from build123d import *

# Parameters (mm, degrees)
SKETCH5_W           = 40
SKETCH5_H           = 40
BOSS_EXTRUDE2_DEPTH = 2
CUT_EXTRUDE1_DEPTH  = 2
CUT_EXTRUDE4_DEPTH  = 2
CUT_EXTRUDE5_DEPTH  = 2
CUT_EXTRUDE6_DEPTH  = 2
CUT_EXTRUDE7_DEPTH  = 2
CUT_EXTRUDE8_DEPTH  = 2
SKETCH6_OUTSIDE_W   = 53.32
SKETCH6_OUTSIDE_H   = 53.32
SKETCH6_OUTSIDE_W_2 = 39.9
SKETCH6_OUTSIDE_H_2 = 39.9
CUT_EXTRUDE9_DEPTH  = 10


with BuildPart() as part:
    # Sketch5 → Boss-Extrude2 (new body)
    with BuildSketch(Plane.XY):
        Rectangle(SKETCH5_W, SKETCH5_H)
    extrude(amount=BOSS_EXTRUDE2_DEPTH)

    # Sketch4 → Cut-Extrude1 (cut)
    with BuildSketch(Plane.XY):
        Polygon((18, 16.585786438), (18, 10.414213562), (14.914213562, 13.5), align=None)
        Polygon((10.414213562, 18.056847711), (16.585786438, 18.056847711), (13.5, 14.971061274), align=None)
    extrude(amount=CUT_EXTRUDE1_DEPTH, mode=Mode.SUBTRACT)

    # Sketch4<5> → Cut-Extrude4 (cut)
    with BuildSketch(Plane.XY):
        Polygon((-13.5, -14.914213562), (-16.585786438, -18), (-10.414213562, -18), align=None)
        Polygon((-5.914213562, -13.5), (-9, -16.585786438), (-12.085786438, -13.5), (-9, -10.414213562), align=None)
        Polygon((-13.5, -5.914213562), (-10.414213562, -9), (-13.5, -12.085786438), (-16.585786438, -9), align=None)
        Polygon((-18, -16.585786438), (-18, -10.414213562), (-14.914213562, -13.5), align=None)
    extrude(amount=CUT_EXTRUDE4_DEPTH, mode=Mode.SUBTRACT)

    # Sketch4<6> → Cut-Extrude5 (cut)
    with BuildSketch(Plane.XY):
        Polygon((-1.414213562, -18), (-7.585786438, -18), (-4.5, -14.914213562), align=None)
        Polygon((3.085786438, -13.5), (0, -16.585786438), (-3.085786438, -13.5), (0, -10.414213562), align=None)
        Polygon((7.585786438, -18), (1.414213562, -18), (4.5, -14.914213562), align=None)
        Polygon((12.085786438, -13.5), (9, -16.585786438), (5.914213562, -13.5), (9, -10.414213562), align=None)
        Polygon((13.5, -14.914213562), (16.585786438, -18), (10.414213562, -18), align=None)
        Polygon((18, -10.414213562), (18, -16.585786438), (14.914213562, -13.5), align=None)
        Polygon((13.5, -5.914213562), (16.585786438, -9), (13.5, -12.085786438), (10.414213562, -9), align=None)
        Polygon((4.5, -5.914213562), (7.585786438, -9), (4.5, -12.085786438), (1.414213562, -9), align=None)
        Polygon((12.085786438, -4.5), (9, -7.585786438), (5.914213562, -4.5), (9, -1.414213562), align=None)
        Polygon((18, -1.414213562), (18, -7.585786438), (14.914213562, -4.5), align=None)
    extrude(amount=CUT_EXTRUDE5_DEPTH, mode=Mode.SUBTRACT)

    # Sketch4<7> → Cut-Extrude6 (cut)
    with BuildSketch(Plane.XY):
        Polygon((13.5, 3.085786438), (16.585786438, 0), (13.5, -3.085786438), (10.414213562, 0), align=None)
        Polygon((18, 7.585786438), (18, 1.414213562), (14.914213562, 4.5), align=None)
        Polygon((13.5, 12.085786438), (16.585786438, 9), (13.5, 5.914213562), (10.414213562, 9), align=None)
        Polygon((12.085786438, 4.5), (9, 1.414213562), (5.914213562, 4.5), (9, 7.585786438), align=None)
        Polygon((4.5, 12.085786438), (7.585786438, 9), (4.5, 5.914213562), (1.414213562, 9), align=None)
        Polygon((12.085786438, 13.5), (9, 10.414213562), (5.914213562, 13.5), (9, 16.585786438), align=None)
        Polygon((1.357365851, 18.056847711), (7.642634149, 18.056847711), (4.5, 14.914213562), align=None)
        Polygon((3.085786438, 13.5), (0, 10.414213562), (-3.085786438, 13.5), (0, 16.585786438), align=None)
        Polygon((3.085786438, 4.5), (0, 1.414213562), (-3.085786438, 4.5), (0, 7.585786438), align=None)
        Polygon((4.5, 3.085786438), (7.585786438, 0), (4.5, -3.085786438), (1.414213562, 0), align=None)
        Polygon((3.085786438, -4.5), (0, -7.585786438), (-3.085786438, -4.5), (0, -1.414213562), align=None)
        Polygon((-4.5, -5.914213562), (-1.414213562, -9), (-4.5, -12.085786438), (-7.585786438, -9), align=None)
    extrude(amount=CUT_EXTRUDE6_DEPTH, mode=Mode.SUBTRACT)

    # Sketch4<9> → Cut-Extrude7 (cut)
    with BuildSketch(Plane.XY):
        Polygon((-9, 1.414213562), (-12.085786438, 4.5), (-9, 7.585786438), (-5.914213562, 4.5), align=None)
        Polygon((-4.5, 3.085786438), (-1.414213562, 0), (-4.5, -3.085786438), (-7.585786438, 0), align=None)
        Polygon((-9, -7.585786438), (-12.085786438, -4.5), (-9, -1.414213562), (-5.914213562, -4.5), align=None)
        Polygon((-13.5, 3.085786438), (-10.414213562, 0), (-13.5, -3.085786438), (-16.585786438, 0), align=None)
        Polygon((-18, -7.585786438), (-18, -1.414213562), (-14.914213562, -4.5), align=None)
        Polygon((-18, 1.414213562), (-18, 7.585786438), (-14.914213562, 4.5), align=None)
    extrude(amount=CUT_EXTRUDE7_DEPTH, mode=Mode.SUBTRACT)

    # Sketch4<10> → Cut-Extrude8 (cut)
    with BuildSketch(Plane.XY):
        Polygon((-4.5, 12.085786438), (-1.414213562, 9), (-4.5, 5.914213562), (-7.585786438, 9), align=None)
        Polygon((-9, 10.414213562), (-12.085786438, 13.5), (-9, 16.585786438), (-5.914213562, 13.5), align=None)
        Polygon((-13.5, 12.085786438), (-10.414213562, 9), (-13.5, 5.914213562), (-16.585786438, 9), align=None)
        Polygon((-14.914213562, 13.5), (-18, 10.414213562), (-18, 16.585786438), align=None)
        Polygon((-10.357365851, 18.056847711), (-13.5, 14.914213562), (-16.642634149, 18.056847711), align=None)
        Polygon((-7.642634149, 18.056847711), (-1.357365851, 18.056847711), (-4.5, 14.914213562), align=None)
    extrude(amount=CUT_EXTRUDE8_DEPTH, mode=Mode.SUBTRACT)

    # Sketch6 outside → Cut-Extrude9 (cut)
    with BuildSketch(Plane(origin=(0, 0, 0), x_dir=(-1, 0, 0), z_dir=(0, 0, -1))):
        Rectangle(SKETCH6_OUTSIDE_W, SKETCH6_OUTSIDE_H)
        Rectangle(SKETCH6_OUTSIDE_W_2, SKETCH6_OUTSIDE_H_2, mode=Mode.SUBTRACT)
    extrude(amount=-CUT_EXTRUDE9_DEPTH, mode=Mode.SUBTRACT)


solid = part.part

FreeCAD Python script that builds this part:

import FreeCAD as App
import Part
import Sketcher

V = App.Vector

doc = App.newDocument("Part")
body = doc.addObject("PartDesign::Body", "Body")

# Sketch on XY plane
sketch1 = doc.addObject("Sketcher::SketchObject", "Sketch")
body.addObject(sketch1)
sketch1.AttachmentSupport = (doc.XY_Plane, [""])
sketch1.MapMode = "FlatFace"
sketch1.addGeometry([
    Part.LineSegment(V(-20, 20, 0), V(-20, -20, 0)),
    Part.LineSegment(V(-20, -20, 0), V(20, -20, 0)),
    Part.LineSegment(V(20, -20, 0), V(20, 20, 0)),
    Part.LineSegment(V(20, 20, 0), V(-20, 20, 0)),
], False)
sketch1.addConstraint([
    Sketcher.Constraint("Coincident", 0, 2, 1, 1),
    Sketcher.Constraint("Coincident", 1, 2, 2, 1),
    Sketcher.Constraint("Coincident", 2, 2, 3, 1),
    Sketcher.Constraint("Coincident", 3, 2, 0, 1),
    Sketcher.Constraint("Vertical", 0),
    Sketcher.Constraint("Horizontal", 1),
    Sketcher.Constraint("Vertical", 2),
    Sketcher.Constraint("Horizontal", 3),
    Sketcher.Constraint("Symmetric", 0, 2, 2, 2, -1, 1),
    Sketcher.Constraint("Equal", 3, 0),
    Sketcher.Constraint("DistanceX", 1, 1, 1, 2, 40.0),
])
pad1 = doc.addObject("PartDesign::Pad", "Pad")
body.addObject(pad1)
pad1.Profile = sketch1
pad1.Length = 2

# Sketch on XY plane
sketch2 = doc.addObject("Sketcher::SketchObject", "Sketch001")
body.addObject(sketch2)
sketch2.AttachmentSupport = (doc.XY_Plane, [""])
sketch2.MapMode = "FlatFace"
sketch2.addGeometry([
    Part.LineSegment(V(18, 10.4, 0), V(18, 16.6, 0)),  # 0
    Part.LineSegment(V(18, 16.6, 0), V(14.9, 13.5, 0)),  # 1
    Part.LineSegment(V(14.9, 13.5, 0), V(18, 10.4, 0)),  # 2
    Part.LineSegment(V(16.6, 18.1, 0), V(10.4, 18.1, 0)),  # 3
    Part.LineSegment(V(10.4, 18.1, 0), V(13.5, 15, 0)),  # 4
    Part.LineSegment(V(13.5, 15, 0), V(16.6, 18.1, 0)),  # 5
], False)
sketch2.addConstraint([
    Sketcher.Constraint("Coincident", 0, 2, 1, 1),
    Sketcher.Constraint("Coincident", 1, 2, 2, 1),
    Sketcher.Constraint("Coincident", 2, 2, 0, 1),
    Sketcher.Constraint("Coincident", 3, 2, 4, 1),
    Sketcher.Constraint("Coincident", 4, 2, 5, 1),
    Sketcher.Constraint("Coincident", 5, 2, 3, 1),
    Sketcher.Constraint("Vertical", 0),
    Sketcher.Constraint("Horizontal", 3),
    Sketcher.Constraint("Perpendicular", 1, 2),
    Sketcher.Constraint("Parallel", 2, 4),
    Sketcher.Constraint("Perpendicular", 4, 5),
    Sketcher.Constraint("Equal", 3, 0),
    Sketcher.Constraint("Equal", 1, 2),
    Sketcher.Constraint("DistanceX", -1, 1, 0, 2, 18.0),
    Sketcher.Constraint("DistanceY", -1, 1, 1, 2, 13.5),
    Sketcher.Constraint("DistanceX", -1, 1, 4, 2, 13.5),
    Sketcher.Constraint("Distance", 1, 4.363961),
    Sketcher.Constraint("DistanceY", -1, 1, 4, 2, 14.971061),
])
pocket1 = doc.addObject("PartDesign::Pocket", "Pocket")
body.addObject(pocket1)
pocket1.Profile = sketch2
pocket1.Length = 2
pocket1.Reversed = True

# Sketch on XY plane
sketch3 = doc.addObject("Sketcher::SketchObject", "Sketch002")
body.addObject(sketch3)
sketch3.AttachmentSupport = (doc.XY_Plane, [""])
sketch3.MapMode = "FlatFace"
sketch3.addGeometry([
    Part.LineSegment(V(-13.5, -14.9, 0), V(-16.6, -18, 0)),  # 0
    Part.LineSegment(V(-16.6, -18, 0), V(-10.4, -18, 0)),  # 1
    Part.LineSegment(V(-10.4, -18, 0), V(-13.5, -14.9, 0)),  # 2
    Part.LineSegment(V(-9, -16.6, 0), V(-5.9, -13.5, 0)),  # 3
    Part.LineSegment(V(-5.9, -13.5, 0), V(-9, -10.4, 0)),  # 4
    Part.LineSegment(V(-9, -10.4, 0), V(-12.1, -13.5, 0)),  # 5
    Part.LineSegment(V(-12.1, -13.5, 0), V(-9, -16.6, 0)),  # 6
    Part.LineSegment(V(-10.4, -9, 0), V(-13.5, -5.9, 0)),  # 7
    Part.LineSegment(V(-13.5, -5.9, 0), V(-16.6, -9, 0)),  # 8
    Part.LineSegment(V(-16.6, -9, 0), V(-13.5, -12.1, 0)),  # 9
    Part.LineSegment(V(-13.5, -12.1, 0), V(-10.4, -9, 0)),  # 10
    Part.LineSegment(V(-18, -10.4, 0), V(-18, -16.6, 0)),  # 11
    Part.LineSegment(V(-18, -16.6, 0), V(-14.9, -13.5, 0)),  # 12
    Part.LineSegment(V(-14.9, -13.5, 0), V(-18, -10.4, 0)),  # 13
], False)
sketch3.addConstraint([
    Sketcher.Constraint("Coincident", 0, 2, 1, 1),
    Sketcher.Constraint("Coincident", 1, 2, 2, 1),
    Sketcher.Constraint("Coincident", 2, 2, 0, 1),
    Sketcher.Constraint("Coincident", 3, 2, 4, 1),
    Sketcher.Constraint("Coincident", 4, 2, 5, 1),
    Sketcher.Constraint("Coincident", 5, 2, 6, 1),
    Sketcher.Constraint("Coincident", 6, 2, 3, 1),
    Sketcher.Constraint("Coincident", 7, 2, 8, 1),
    Sketcher.Constraint("Coincident", 8, 2, 9, 1),
    Sketcher.Constraint("Coincident", 9, 2, 10, 1),
    Sketcher.Constraint("Coincident", 10, 2, 7, 1),
    Sketcher.Constraint("Coincident", 11, 2, 12, 1),
    Sketcher.Constraint("Coincident", 12, 2, 13, 1),
    Sketcher.Constraint("Coincident", 13, 2, 11, 1),
    Sketcher.Constraint("Horizontal", 1),
    Sketcher.Constraint("Vertical", 11),
    Sketcher.Constraint("Perpendicular", 0, 2),
    Sketcher.Constraint("Perpendicular", 2, 3),
    Sketcher.Constraint("Perpendicular", 3, 4),
    Sketcher.Constraint("Perpendicular", 4, 5),
    Sketcher.Constraint("Perpendicular", 5, 6),
    Sketcher.Constraint("Parallel", 6, 7),
    Sketcher.Constraint("Perpendicular", 7, 8),
    Sketcher.Constraint("Perpendicular", 8, 9),
    Sketcher.Constraint("Perpendicular", 9, 10),
    Sketcher.Constraint("Parallel", 10, 12),
    Sketcher.Constraint("Perpendicular", 12, 13),
    Sketcher.Constraint("Horizontal", 3, 2, 5, 2),
    Sketcher.Constraint("Horizontal", 8, 2, 10, 2),
    Sketcher.Constraint("Horizontal", 6, 2, 11, 2),
    Sketcher.Constraint("Horizontal", 5, 2, 12, 2),
    Sketcher.Constraint("Horizontal", 4, 2, 13, 2),
    Sketcher.Constraint("Vertical", 2, 2, 7, 2),
    Sketcher.Constraint("Vertical", 0, 2, 8, 2),
    Sketcher.Constraint("Equal", 1, 11),
    Sketcher.Constraint("DistanceY", 0, 2, -1, 1, 18.0),
    Sketcher.Constraint("DistanceX", 4, 2, -1, 1, 9.0),
    Sketcher.Constraint("DistanceY", 8, 2, -1, 1, 9.0),
    Sketcher.Constraint("DistanceX", 11, 2, -1, 1, 18.0),
    Sketcher.Constraint("DistanceX", 2, 2, -1, 1, 13.5),
    Sketcher.Constraint("DistanceY", 3, 2, -1, 1, 13.5),
    Sketcher.Constraint("Distance", 0, 4.363961),
])
pocket2 = doc.addObject("PartDesign::Pocket", "Pocket001")
body.addObject(pocket2)
pocket2.Profile = sketch3
pocket2.Length = 2
pocket2.Reversed = True

# Sketch on XY plane
sketch4 = doc.addObject("Sketcher::SketchObject", "Sketch003")
body.addObject(sketch4)
sketch4.AttachmentSupport = (doc.XY_Plane, [""])
sketch4.MapMode = "FlatFace"
sketch4.addGeometry([
    Part.LineSegment(V(-7.6, -18, 0), V(-1.4, -18, 0)),  # 0
    Part.LineSegment(V(-1.4, -18, 0), V(-4.5, -14.9, 0)),  # 1
    Part.LineSegment(V(-4.5, -14.9, 0), V(-7.6, -18, 0)),  # 2
    Part.LineSegment(V(0, -16.6, 0), V(3.1, -13.5, 0)),  # 3
    Part.LineSegment(V(3.1, -13.5, 0), V(0, -10.4, 0)),  # 4
    Part.LineSegment(V(0, -10.4, 0), V(-3.1, -13.5, 0)),  # 5
    Part.LineSegment(V(-3.1, -13.5, 0), V(0, -16.6, 0)),  # 6
    Part.LineSegment(V(1.4, -18, 0), V(7.6, -18, 0)),  # 7
    Part.LineSegment(V(7.6, -18, 0), V(4.5, -14.9, 0)),  # 8
    Part.LineSegment(V(4.5, -14.9, 0), V(1.4, -18, 0)),  # 9
    Part.LineSegment(V(9, -16.6, 0), V(12.1, -13.5, 0)),  # 10
    Part.LineSegment(V(12.1, -13.5, 0), V(9, -10.4, 0)),  # 11
    Part.LineSegment(V(9, -10.4, 0), V(5.9, -13.5, 0)),  # 12
    Part.LineSegment(V(5.9, -13.5, 0), V(9, -16.6, 0)),  # 13
    Part.LineSegment(V(16.6, -18, 0), V(13.5, -14.9, 0)),  # 14
    Part.LineSegment(V(13.5, -14.9, 0), V(10.4, -18, 0)),  # 15
    Part.LineSegment(V(10.4, -18, 0), V(16.6, -18, 0)),  # 16
    Part.LineSegment(V(18, -16.6, 0), V(18, -10.4, 0)),  # 17
    Part.LineSegment(V(18, -10.4, 0), V(14.9, -13.5, 0)),  # 18
    Part.LineSegment(V(14.9, -13.5, 0), V(18, -16.6, 0)),  # 19
    Part.LineSegment(V(16.6, -9, 0), V(13.5, -5.9, 0)),  # 20
    Part.LineSegment(V(13.5, -5.9, 0), V(10.4, -9, 0)),  # 21
    Part.LineSegment(V(10.4, -9, 0), V(13.5, -12.1, 0)),  # 22
    Part.LineSegment(V(13.5, -12.1, 0), V(16.6, -9, 0)),  # 23
    Part.LineSegment(V(7.6, -9, 0), V(4.5, -5.9, 0)),  # 24
    Part.LineSegment(V(4.5, -5.9, 0), V(1.4, -9, 0)),  # 25
    Part.LineSegment(V(1.4, -9, 0), V(4.5, -12.1, 0)),  # 26
    Part.LineSegment(V(4.5, -12.1, 0), V(7.6, -9, 0)),  # 27
    Part.LineSegment(V(9, -7.6, 0), V(12.1, -4.5, 0)),  # 28
    Part.LineSegment(V(12.1, -4.5, 0), V(9, -1.4, 0)),  # 29
    Part.LineSegment(V(9, -1.4, 0), V(5.9, -4.5, 0)),  # 30
    Part.LineSegment(V(5.9, -4.5, 0), V(9, -7.6, 0)),  # 31
    Part.LineSegment(V(18, -7.6, 0), V(18, -1.4, 0)),  # 32
    Part.LineSegment(V(18, -1.4, 0), V(14.9, -4.5, 0)),  # 33
    Part.LineSegment(V(14.9, -4.5, 0), V(18, -7.6, 0)),  # 34
], False)
sketch4.addConstraint([
    Sketcher.Constraint("Coincident", 0, 2, 1, 1),
    Sketcher.Constraint("Coincident", 1, 2, 2, 1),
    Sketcher.Constraint("Coincident", 2, 2, 0, 1),
    Sketcher.Constraint("Coincident", 3, 2, 4, 1),
    Sketcher.Constraint("Coincident", 4, 2, 5, 1),
    Sketcher.Constraint("Coincident", 5, 2, 6, 1),
    Sketcher.Constraint("Coincident", 6, 2, 3, 1),
    Sketcher.Constraint("Coincident", 7, 2, 8, 1),
    Sketcher.Constraint("Coincident", 8, 2, 9, 1),
    Sketcher.Constraint("Coincident", 9, 2, 7, 1),
    Sketcher.Constraint("Coincident", 10, 2, 11, 1),
    Sketcher.Constraint("Coincident", 11, 2, 12, 1),
    Sketcher.Constraint("Coincident", 12, 2, 13, 1),
    Sketcher.Constraint("Coincident", 13, 2, 10, 1),
    Sketcher.Constraint("Coincident", 14, 2, 15, 1),
    Sketcher.Constraint("Coincident", 15, 2, 16, 1),
    Sketcher.Constraint("Coincident", 16, 2, 14, 1),
    Sketcher.Constraint("Coincident", 17, 2, 18, 1),
    Sketcher.Constraint("Coincident", 18, 2, 19, 1),
    Sketcher.Constraint("Coincident", 19, 2, 17, 1),
    Sketcher.Constraint("Coincident", 20, 2, 21, 1),
    Sketcher.Constraint("Coincident", 21, 2, 22, 1),
    Sketcher.Constraint("Coincident", 22, 2, 23, 1),
    Sketcher.Constraint("Coincident", 23, 2, 20, 1),
    Sketcher.Constraint("Coincident", 24, 2, 25, 1),
    Sketcher.Constraint("Coincident", 25, 2, 26, 1),
    Sketcher.Constraint("Coincident", 26, 2, 27, 1),
    Sketcher.Constraint("Coincident", 27, 2, 24, 1),
    Sketcher.Constraint("Coincident", 28, 2, 29, 1),
    Sketcher.Constraint("Coincident", 29, 2, 30, 1),
    Sketcher.Constraint("Coincident", 30, 2, 31, 1),
    Sketcher.Constraint("Coincident", 31, 2, 28, 1),
    Sketcher.Constraint("Coincident", 32, 2, 33, 1),
    Sketcher.Constraint("Coincident", 33, 2, 34, 1),
    Sketcher.Constraint("Coincident", 34, 2, 32, 1),
    Sketcher.Constraint("Horizontal", 0),
    Sketcher.Constraint("Horizontal", 7),
    Sketcher.Constraint("Horizontal", 16),
    Sketcher.Constraint("Vertical", 17),
    Sketcher.Constraint("Vertical", 32),
    Sketcher.Constraint("Symmetric", 3, 2, 5, 2, -2),
    Sketcher.Constraint("Symmetric", 2, 2, 7, 2, -2),
    Sketcher.Constraint("Symmetric", 1, 2, 8, 2, -2),
    Sketcher.Constraint("PointOnObject", 4, 2, -2),
    Sketcher.Constraint("PointOnObject", 6, 2, -2),
    Sketcher.Constraint("Perpendicular", 1, 2),
    Sketcher.Constraint("Parallel", 2, 3),
    Sketcher.Constraint("Perpendicular", 3, 4),
    Sketcher.Constraint("Perpendicular", 4, 5),
    Sketcher.Constraint("Perpendicular", 8, 9),
    Sketcher.Constraint("Parallel", 9, 10),
    Sketcher.Constraint("Perpendicular", 10, 11),
    Sketcher.Constraint("Perpendicular", 11, 12),
    Sketcher.Constraint("Perpendicular", 12, 13),
    Sketcher.Constraint("Parallel", 13, 14),
    Sketcher.Constraint("Perpendicular", 14, 15),
    Sketcher.Constraint("Parallel", 15, 18),
    Sketcher.Constraint("Perpendicular", 18, 19),
    Sketcher.Constraint("Parallel", 19, 20),
    Sketcher.Constraint("Perpendicular", 20, 21),
    Sketcher.Constraint("Perpendicular", 21, 22),
    Sketcher.Constraint("Perpendicular", 22, 23),
    Sketcher.Constraint("Perpendicular", 23, 24),
    Sketcher.Constraint("Perpendicular", 24, 25),
    Sketcher.Constraint("Perpendicular", 25, 26),
    Sketcher.Constraint("Perpendicular", 26, 27),
    Sketcher.Constraint("Parallel", 27, 28),
    Sketcher.Constraint("Perpendicular", 28, 29),
    Sketcher.Constraint("Perpendicular", 29, 30),
    Sketcher.Constraint("Perpendicular", 30, 31),
    Sketcher.Constraint("Perpendicular", 31, 33),
    Sketcher.Constraint("Perpendicular", 33, 34),
    Sketcher.Constraint("Horizontal", 5, 2, 10, 2),
    Sketcher.Constraint("Horizontal", 4, 2, 11, 2),
    Sketcher.Constraint("Horizontal", 10, 2, 12, 2),
    Sketcher.Constraint("Horizontal", 8, 2, 14, 2),
    Sketcher.Constraint("Horizontal", 9, 2, 15, 2),
    Sketcher.Constraint("Horizontal", 11, 2, 17, 2),
    Sketcher.Constraint("Horizontal", 12, 2, 18, 2),
    Sketcher.Constraint("Horizontal", 21, 2, 23, 2),
    Sketcher.Constraint("Horizontal", 20, 2, 24, 2),
    Sketcher.Constraint("Horizontal", 23, 2, 25, 2),
    Sketcher.Constraint("Horizontal", 22, 2, 26, 2),
    Sketcher.Constraint("Horizontal", 28, 2, 30, 2),
    Sketcher.Constraint("Horizontal", 29, 2, 32, 2),
    Sketcher.Constraint("Horizontal", 30, 2, 33, 2),
    Sketcher.Constraint("Vertical", 14, 2, 20, 2),
    Sketcher.Constraint("Vertical", 15, 2, 21, 2),
    Sketcher.Constraint("Vertical", 8, 2, 24, 2),
    Sketcher.Constraint("Vertical", 10, 2, 28, 2),
    Sketcher.Constraint("Vertical", 13, 2, 29, 2),
    Sketcher.Constraint("Vertical", 19, 2, 32, 2),
    Sketcher.Constraint("Equal", 16, 17),
    Sketcher.Constraint("DistanceY", 0, 2, -1, 1, 18.0),
    Sketcher.Constraint("DistanceX", -1, 1, 11, 2, 9.0),
    Sketcher.Constraint("DistanceX", -1, 1, 17, 2, 18.0),
    Sketcher.Constraint("DistanceY", 21, 2, -1, 1, 9.0),
    Sketcher.Constraint("DistanceX", 0, 2, 7, 2, 9.0),
    Sketcher.Constraint("DistanceX", 7, 2, 16, 2, 9.0),
    Sketcher.Constraint("DistanceY", 17, 2, 32, 2, 9.0),
    Sketcher.Constraint("DistanceY", 3, 2, -1, 1, 13.5),
    Sketcher.Constraint("Distance", 1, 4.363961),
])
pocket3 = doc.addObject("PartDesign::Pocket", "Pocket002")
body.addObject(pocket3)
pocket3.Profile = sketch4
pocket3.Length = 2
pocket3.Reversed = True

# Sketch on XY plane
sketch5 = doc.addObject("Sketcher::SketchObject", "Sketch004")
body.addObject(sketch5)
sketch5.AttachmentSupport = (doc.XY_Plane, [""])
sketch5.MapMode = "FlatFace"
sketch5.addGeometry([
    Part.LineSegment(V(16.6, 0, 0), V(13.5, 3.1, 0)),  # 0
    Part.LineSegment(V(13.5, 3.1, 0), V(10.4, 0, 0)),  # 1
    Part.LineSegment(V(10.4, 0, 0), V(13.5, -3.1, 0)),  # 2
    Part.LineSegment(V(13.5, -3.1, 0), V(16.6, 0, 0)),  # 3
    Part.LineSegment(V(18, 1.4, 0), V(18, 7.6, 0)),  # 4
    Part.LineSegment(V(18, 7.6, 0), V(14.9, 4.5, 0)),  # 5
    Part.LineSegment(V(14.9, 4.5, 0), V(18, 1.4, 0)),  # 6
    Part.LineSegment(V(16.6, 9, 0), V(13.5, 12.1, 0)),  # 7
    Part.LineSegment(V(13.5, 12.1, 0), V(10.4, 9, 0)),  # 8
    Part.LineSegment(V(10.4, 9, 0), V(13.5, 5.9, 0)),  # 9
    Part.LineSegment(V(13.5, 5.9, 0), V(16.6, 9, 0)),  # 10
    Part.LineSegment(V(9, 1.4, 0), V(12.1, 4.5, 0)),  # 11
    Part.LineSegment(V(12.1, 4.5, 0), V(9, 7.6, 0)),  # 12
    Part.LineSegment(V(9, 7.6, 0), V(5.9, 4.5, 0)),  # 13
    Part.LineSegment(V(5.9, 4.5, 0), V(9, 1.4, 0)),  # 14
    Part.LineSegment(V(7.6, 9, 0), V(4.5, 12.1, 0)),  # 15
    Part.LineSegment(V(4.5, 12.1, 0), V(1.4, 9, 0)),  # 16
    Part.LineSegment(V(1.4, 9, 0), V(4.5, 5.9, 0)),  # 17
    Part.LineSegment(V(4.5, 5.9, 0), V(7.6, 9, 0)),  # 18
    Part.LineSegment(V(9, 10.4, 0), V(12.1, 13.5, 0)),  # 19
    Part.LineSegment(V(12.1, 13.5, 0), V(9, 16.6, 0)),  # 20
    Part.LineSegment(V(9, 16.6, 0), V(5.9, 13.5, 0)),  # 21
    Part.LineSegment(V(5.9, 13.5, 0), V(9, 10.4, 0)),  # 22
    Part.LineSegment(V(7.6, 18.1, 0), V(1.4, 18.1, 0)),  # 23
    Part.LineSegment(V(1.4, 18.1, 0), V(4.5, 14.9, 0)),  # 24
    Part.LineSegment(V(4.5, 14.9, 0), V(7.6, 18.1, 0)),  # 25
    Part.LineSegment(V(0, 10.4, 0), V(3.1, 13.5, 0)),  # 26
    Part.LineSegment(V(3.1, 13.5, 0), V(0, 16.6, 0)),  # 27
    Part.LineSegment(V(0, 16.6, 0), V(-3.1, 13.5, 0)),  # 28
    Part.LineSegment(V(-3.1, 13.5, 0), V(0, 10.4, 0)),  # 29
    Part.LineSegment(V(0, 1.4, 0), V(3.1, 4.5, 0)),  # 30
    Part.LineSegment(V(3.1, 4.5, 0), V(0, 7.6, 0)),  # 31
    Part.LineSegment(V(0, 7.6, 0), V(-3.1, 4.5, 0)),  # 32
    Part.LineSegment(V(-3.1, 4.5, 0), V(0, 1.4, 0)),  # 33
    Part.LineSegment(V(7.6, 0, 0), V(4.5, 3.1, 0)),  # 34
    Part.LineSegment(V(4.5, 3.1, 0), V(1.4, 0, 0)),  # 35
    Part.LineSegment(V(1.4, 0, 0), V(4.5, -3.1, 0)),  # 36
    Part.LineSegment(V(4.5, -3.1, 0), V(7.6, 0, 0)),  # 37
    Part.LineSegment(V(0, -7.6, 0), V(3.1, -4.5, 0)),  # 38
    Part.LineSegment(V(3.1, -4.5, 0), V(0, -1.4, 0)),  # 39
    Part.LineSegment(V(0, -1.4, 0), V(-3.1, -4.5, 0)),  # 40
    Part.LineSegment(V(-3.1, -4.5, 0), V(0, -7.6, 0)),  # 41
    Part.LineSegment(V(-1.4, -9, 0), V(-4.5, -5.9, 0)),  # 42
    Part.LineSegment(V(-4.5, -5.9, 0), V(-7.6, -9, 0)),  # 43
    Part.LineSegment(V(-7.6, -9, 0), V(-4.5, -12.1, 0)),  # 44
    Part.LineSegment(V(-4.5, -12.1, 0), V(-1.4, -9, 0)),  # 45
], False)
sketch5.addConstraint([
    Sketcher.Constraint("Coincident", 0, 2, 1, 1),
    Sketcher.Constraint("Coincident", 1, 2, 2, 1),
    Sketcher.Constraint("Coincident", 2, 2, 3, 1),
    Sketcher.Constraint("Coincident", 3, 2, 0, 1),
    Sketcher.Constraint("Coincident", 4, 2, 5, 1),
    Sketcher.Constraint("Coincident", 5, 2, 6, 1),
    Sketcher.Constraint("Coincident", 6, 2, 4, 1),
    Sketcher.Constraint("Coincident", 7, 2, 8, 1),
    Sketcher.Constraint("Coincident", 8, 2, 9, 1),
    Sketcher.Constraint("Coincident", 9, 2, 10, 1),
    Sketcher.Constraint("Coincident", 10, 2, 7, 1),
    Sketcher.Constraint("Coincident", 11, 2, 12, 1),
    Sketcher.Constraint("Coincident", 12, 2, 13, 1),
    Sketcher.Constraint("Coincident", 13, 2, 14, 1),
    Sketcher.Constraint("Coincident", 14, 2, 11, 1),
    Sketcher.Constraint("Coincident", 15, 2, 16, 1),
    Sketcher.Constraint("Coincident", 16, 2, 17, 1),
    Sketcher.Constraint("Coincident", 17, 2, 18, 1),
    Sketcher.Constraint("Coincident", 18, 2, 15, 1),
    Sketcher.Constraint("Coincident", 19, 2, 20, 1),
    Sketcher.Constraint("Coincident", 20, 2, 21, 1),
    Sketcher.Constraint("Coincident", 21, 2, 22, 1),
    Sketcher.Constraint("Coincident", 22, 2, 19, 1),
    Sketcher.Constraint("Coincident", 23, 2, 24, 1),
    Sketcher.Constraint("Coincident", 24, 2, 25, 1),
    Sketcher.Constraint("Coincident", 25, 2, 23, 1),
    Sketcher.Constraint("Coincident", 26, 2, 27, 1),
    Sketcher.Constraint("Coincident", 27, 2, 28, 1),
    Sketcher.Constraint("Coincident", 28, 2, 29, 1),
    Sketcher.Constraint("Coincident", 29, 2, 26, 1),
    Sketcher.Constraint("Coincident", 30, 2, 31, 1),
    Sketcher.Constraint("Coincident", 31, 2, 32, 1),
    Sketcher.Constraint("Coincident", 32, 2, 33, 1),
    Sketcher.Constraint("Coincident", 33, 2, 30, 1),
    Sketcher.Constraint("Coincident", 34, 2, 35, 1),
    Sketcher.Constraint("Coincident", 35, 2, 36, 1),
    Sketcher.Constraint("Coincident", 36, 2, 37, 1),
    Sketcher.Constraint("Coincident", 37, 2, 34, 1),
    Sketcher.Constraint("Coincident", 38, 2, 39, 1),
    Sketcher.Constraint("Coincident", 39, 2, 40, 1),
    Sketcher.Constraint("Coincident", 40, 2, 41, 1),
    Sketcher.Constraint("Coincident", 41, 2, 38, 1),
    Sketcher.Constraint("Coincident", 42, 2, 43, 1),
    Sketcher.Constraint("Coincident", 43, 2, 44, 1),
    Sketcher.Constraint("Coincident", 44, 2, 45, 1),
    Sketcher.Constraint("Coincident", 45, 2, 42, 1),
    Sketcher.Constraint("Vertical", 4),
    Sketcher.Constraint("Horizontal", 23),
    Sketcher.Constraint("Symmetric", 32, 2, 38, 2, -1, 1),
    Sketcher.Constraint("Symmetric", 33, 2, 39, 2, -1, 1),
    Sketcher.Constraint("Symmetric", 30, 2, 40, 2, -1, 1),
    Sketcher.Constraint("Symmetric", 31, 2, 41, 2, -1, 1),
    Sketcher.Constraint("Symmetric", 17, 2, 42, 2, -1, 1),
    Sketcher.Constraint("Symmetric", 18, 2, 43, 2, -1, 1),
    Sketcher.Constraint("Symmetric", 15, 2, 44, 2, -1, 1),
    Sketcher.Constraint("Symmetric", 16, 2, 45, 2, -1, 1),
    Sketcher.Constraint("Symmetric", 26, 2, 28, 2, -2),
    Sketcher.Constraint("Symmetric", 30, 2, 32, 2, -2),
    Sketcher.Constraint("Symmetric", 0, 2, 2, 2, -1),
    Sketcher.Constraint("Symmetric", 34, 2, 36, 2, -1),
    Sketcher.Constraint("PointOnObject", 1, 2, -1),
    Sketcher.Constraint("PointOnObject", 3, 2, -1),
    Sketcher.Constraint("PointOnObject", 27, 2, -2),
    Sketcher.Constraint("PointOnObject", 29, 2, -2),
    Sketcher.Constraint("PointOnObject", 31, 2, -2),
    Sketcher.Constraint("PointOnObject", 33, 2, -2),
    Sketcher.Constraint("PointOnObject", 35, 2, -1),
    Sketcher.Constraint("PointOnObject", 37, 2, -1),
    Sketcher.Constraint("Perpendicular", 0, 1),
    Sketcher.Constraint("Perpendicular", 1, 2),
    Sketcher.Constraint("Parallel", 3, 5),
    Sketcher.Constraint("Perpendicular", 5, 6),
    Sketcher.Constraint("Parallel", 6, 7),
    Sketcher.Constraint("Perpendicular", 7, 8),
    Sketcher.Constraint("Perpendicular", 8, 9),
    Sketcher.Constraint("Perpendicular", 9, 10),
    Sketcher.Constraint("Parallel", 10, 11),
    Sketcher.Constraint("Perpendicular", 11, 12),
    Sketcher.Constraint("Perpendicular", 12, 13),
    Sketcher.Constraint("Perpendicular", 13, 14),
    Sketcher.Constraint("Parallel", 14, 15),
    Sketcher.Constraint("Perpendicular", 15, 16),
    Sketcher.Constraint("Perpendicular", 16, 17),
    Sketcher.Constraint("Perpendicular", 17, 18),
    Sketcher.Constraint("Parallel", 18, 19),
    Sketcher.Constraint("Perpendicular", 19, 20),
    Sketcher.Constraint("Perpendicular", 20, 21),
    Sketcher.Constraint("Perpendicular", 21, 22),
    Sketcher.Constraint("Parallel", 22, 24),
    Sketcher.Constraint("Perpendicular", 24, 25),
    Sketcher.Constraint("Parallel", 25, 26),
    Sketcher.Constraint("Perpendicular", 26, 27),
    Sketcher.Constraint("Perpendicular", 29, 30),
    Sketcher.Constraint("Perpendicular", 30, 31),
    Sketcher.Constraint("Parallel", 33, 34),
    Sketcher.Constraint("Perpendicular", 34, 35),
    Sketcher.Constraint("Horizontal", 8, 2, 10, 2),
    Sketcher.Constraint("Horizontal", 5, 2, 11, 2),
    Sketcher.Constraint("Horizontal", 4, 2, 12, 2),
    Sketcher.Constraint("Horizontal", 11, 2, 13, 2),
    Sketcher.Constraint("Horizontal", 7, 2, 15, 2),
    Sketcher.Constraint("Horizontal", 10, 2, 16, 2),
    Sketcher.Constraint("Horizontal", 9, 2, 17, 2),
    Sketcher.Constraint("Horizontal", 19, 2, 21, 2),
    Sketcher.Constraint("Horizontal", 21, 2, 26, 2),
    Sketcher.Constraint("Horizontal", 20, 2, 27, 2),
    Sketcher.Constraint("Horizontal", 13, 2, 30, 2),
    Sketcher.Constraint("Horizontal", 12, 2, 31, 2),
    Sketcher.Constraint("Horizontal", 0, 2, 34, 2),
    Sketcher.Constraint("Vertical", 2, 2, 7, 2),
    Sketcher.Constraint("Vertical", 1, 2, 8, 2),
    Sketcher.Constraint("Vertical", 11, 2, 19, 2),
    Sketcher.Constraint("Vertical", 14, 2, 20, 2),
    Sketcher.Constraint("Vertical", 17, 2, 24, 2),
    Sketcher.Constraint("Vertical", 24, 2, 34, 2),
    Sketcher.Constraint("Equal", 3, 5),
    Sketcher.Constraint("DistanceX", -1, 1, 4, 2, 18.0),
    Sketcher.Constraint("DistanceY", -1, 1, 8, 2, 9.0),
    Sketcher.Constraint("DistanceX", -1, 1, 12, 2, 9.0),
    Sketcher.Constraint("DistanceX", 15, 2, 7, 2, 9.0),
    Sketcher.Constraint("DistanceX", -1, 1, 0, 2, 13.5),
    Sketcher.Constraint("DistanceY", -1, 1, 5, 2, 4.5),
    Sketcher.Constraint("DistanceY", -1, 1, 19, 2, 13.5),
    Sketcher.Constraint("DistanceY", 22, 2, 24, 2, 4.5),
    Sketcher.Constraint("DistanceX", 23, 2, 23, 1, 6.285268),
    Sketcher.Constraint("Distance", 0, 4.363961),
])
pocket4 = doc.addObject("PartDesign::Pocket", "Pocket003")
body.addObject(pocket4)
pocket4.Profile = sketch5
pocket4.Length = 2
pocket4.Reversed = True

# Sketch on XY plane
sketch6 = doc.addObject("Sketcher::SketchObject", "Sketch005")
body.addObject(sketch6)
sketch6.AttachmentSupport = (doc.XY_Plane, [""])
sketch6.MapMode = "FlatFace"
sketch6.addGeometry([
    Part.LineSegment(V(-12.1, 4.5, 0), V(-9, 1.4, 0)),  # 0
    Part.LineSegment(V(-9, 1.4, 0), V(-5.9, 4.5, 0)),  # 1
    Part.LineSegment(V(-5.9, 4.5, 0), V(-9, 7.6, 0)),  # 2
    Part.LineSegment(V(-9, 7.6, 0), V(-12.1, 4.5, 0)),  # 3
    Part.LineSegment(V(-1.4, 0, 0), V(-4.5, 3.1, 0)),  # 4
    Part.LineSegment(V(-4.5, 3.1, 0), V(-7.6, 0, 0)),  # 5
    Part.LineSegment(V(-7.6, 0, 0), V(-4.5, -3.1, 0)),  # 6
    Part.LineSegment(V(-4.5, -3.1, 0), V(-1.4, 0, 0)),  # 7
    Part.LineSegment(V(-12.1, -4.5, 0), V(-9, -7.6, 0)),  # 8
    Part.LineSegment(V(-9, -7.6, 0), V(-5.9, -4.5, 0)),  # 9
    Part.LineSegment(V(-5.9, -4.5, 0), V(-9, -1.4, 0)),  # 10
    Part.LineSegment(V(-9, -1.4, 0), V(-12.1, -4.5, 0)),  # 11
    Part.LineSegment(V(-10.4, 0, 0), V(-13.5, 3.1, 0)),  # 12
    Part.LineSegment(V(-13.5, 3.1, 0), V(-16.6, 0, 0)),  # 13
    Part.LineSegment(V(-16.6, 0, 0), V(-13.5, -3.1, 0)),  # 14
    Part.LineSegment(V(-13.5, -3.1, 0), V(-10.4, 0, 0)),  # 15
    Part.LineSegment(V(-18, -1.4, 0), V(-18, -7.6, 0)),  # 16
    Part.LineSegment(V(-18, -7.6, 0), V(-14.9, -4.5, 0)),  # 17
    Part.LineSegment(V(-14.9, -4.5, 0), V(-18, -1.4, 0)),  # 18
    Part.LineSegment(V(-18, 7.6, 0), V(-18, 1.4, 0)),  # 19
    Part.LineSegment(V(-18, 1.4, 0), V(-14.9, 4.5, 0)),  # 20
    Part.LineSegment(V(-14.9, 4.5, 0), V(-18, 7.6, 0)),  # 21
], False)
sketch6.addConstraint([
    Sketcher.Constraint("Coincident", 0, 2, 1, 1),
    Sketcher.Constraint("Coincident", 1, 2, 2, 1),
    Sketcher.Constraint("Coincident", 2, 2, 3, 1),
    Sketcher.Constraint("Coincident", 3, 2, 0, 1),
    Sketcher.Constraint("Coincident", 4, 2, 5, 1),
    Sketcher.Constraint("Coincident", 5, 2, 6, 1),
    Sketcher.Constraint("Coincident", 6, 2, 7, 1),
    Sketcher.Constraint("Coincident", 7, 2, 4, 1),
    Sketcher.Constraint("Coincident", 8, 2, 9, 1),
    Sketcher.Constraint("Coincident", 9, 2, 10, 1),
    Sketcher.Constraint("Coincident", 10, 2, 11, 1),
    Sketcher.Constraint("Coincident", 11, 2, 8, 1),
    Sketcher.Constraint("Coincident", 12, 2, 13, 1),
    Sketcher.Constraint("Coincident", 13, 2, 14, 1),
    Sketcher.Constraint("Coincident", 14, 2, 15, 1),
    Sketcher.Constraint("Coincident", 15, 2, 12, 1),
    Sketcher.Constraint("Coincident", 16, 2, 17, 1),
    Sketcher.Constraint("Coincident", 17, 2, 18, 1),
    Sketcher.Constraint("Coincident", 18, 2, 16, 1),
    Sketcher.Constraint("Coincident", 19, 2, 20, 1),
    Sketcher.Constraint("Coincident", 20, 2, 21, 1),
    Sketcher.Constraint("Coincident", 21, 2, 19, 1),
    Sketcher.Constraint("Vertical", 16),
    Sketcher.Constraint("Vertical", 19),
    Sketcher.Constraint("Symmetric", 4, 2, 6, 2, -1),
    Sketcher.Constraint("Symmetric", 2, 2, 8, 2, -1),
    Sketcher.Constraint("Symmetric", 1, 2, 9, 2, -1),
    Sketcher.Constraint("Symmetric", 0, 2, 10, 2, -1),
    Sketcher.Constraint("Symmetric", 3, 2, 11, 2, -1),
    Sketcher.Constraint("Symmetric", 12, 2, 14, 2, -1),
    Sketcher.Constraint("Symmetric", 18, 2, 19, 2, -1),
    Sketcher.Constraint("Symmetric", 17, 2, 20, 2, -1),
    Sketcher.Constraint("PointOnObject", 5, 2, -1),
    Sketcher.Constraint("PointOnObject", 7, 2, -1),
    Sketcher.Constraint("PointOnObject", 13, 2, -1),
    Sketcher.Constraint("PointOnObject", 15, 2, -1),
    Sketcher.Constraint("Perpendicular", 0, 1),
    Sketcher.Constraint("Perpendicular", 1, 2),
    Sketcher.Constraint("Perpendicular", 2, 3),
    Sketcher.Constraint("Perpendicular", 3, 4),
    Sketcher.Constraint("Perpendicular", 4, 5),
    Sketcher.Constraint("Perpendicular", 5, 6),
    Sketcher.Constraint("Perpendicular", 11, 12),
    Sketcher.Constraint("Perpendicular", 12, 13),
    Sketcher.Constraint("Parallel", 15, 17),
    Sketcher.Constraint("Perpendicular", 17, 18),
    Sketcher.Constraint("Perpendicular", 20, 21),
    Sketcher.Constraint("Horizontal", 1, 2, 3, 2),
    Sketcher.Constraint("Horizontal", 4, 2, 12, 2),
    Sketcher.Constraint("Horizontal", 8, 2, 16, 2),
    Sketcher.Constraint("Horizontal", 11, 2, 17, 2),
    Sketcher.Constraint("Equal", 3, 4),
    Sketcher.Constraint("DistanceX", 0, 2, -1, 1, 9.0),
    Sketcher.Constraint("DistanceX", 16, 2, -1, 1, 18.0),
    Sketcher.Constraint("DistanceY", 8, 2, 0, 2, 9.0),
    Sketcher.Constraint("DistanceX", 4, 2, -1, 1, 4.5),
    Sketcher.Constraint("DistanceX", 12, 2, -1, 1, 13.5),
    Sketcher.Constraint("Distance", 0, 4.363961),
])
pocket5 = doc.addObject("PartDesign::Pocket", "Pocket004")
body.addObject(pocket5)
pocket5.Profile = sketch6
pocket5.Length = 2
pocket5.Reversed = True

# Sketch on XY plane
sketch7 = doc.addObject("Sketcher::SketchObject", "Sketch006")
body.addObject(sketch7)
sketch7.AttachmentSupport = (doc.XY_Plane, [""])
sketch7.MapMode = "FlatFace"
sketch7.addGeometry([
    Part.LineSegment(V(-1.4, 9, 0), V(-4.5, 12.1, 0)),  # 0
    Part.LineSegment(V(-4.5, 12.1, 0), V(-7.6, 9, 0)),  # 1
    Part.LineSegment(V(-7.6, 9, 0), V(-4.5, 5.9, 0)),  # 2
    Part.LineSegment(V(-4.5, 5.9, 0), V(-1.4, 9, 0)),  # 3
    Part.LineSegment(V(-12.1, 13.5, 0), V(-9, 10.4, 0)),  # 4
    Part.LineSegment(V(-9, 10.4, 0), V(-5.9, 13.5, 0)),  # 5
    Part.LineSegment(V(-5.9, 13.5, 0), V(-9, 16.6, 0)),  # 6
    Part.LineSegment(V(-9, 16.6, 0), V(-12.1, 13.5, 0)),  # 7
    Part.LineSegment(V(-10.4, 9, 0), V(-13.5, 12.1, 0)),  # 8
    Part.LineSegment(V(-13.5, 12.1, 0), V(-16.6, 9, 0)),  # 9
    Part.LineSegment(V(-16.6, 9, 0), V(-13.5, 5.9, 0)),  # 10
    Part.LineSegment(V(-13.5, 5.9, 0), V(-10.4, 9, 0)),  # 11
    Part.LineSegment(V(-18, 10.4, 0), V(-14.9, 13.5, 0)),  # 12
    Part.LineSegment(V(-14.9, 13.5, 0), V(-18, 16.6, 0)),  # 13
    Part.LineSegment(V(-18, 16.6, 0), V(-18, 10.4, 0)),  # 14
    Part.LineSegment(V(-13.5, 14.9, 0), V(-10.4, 18.1, 0)),  # 15
    Part.LineSegment(V(-10.4, 18.1, 0), V(-16.6, 18.1, 0)),  # 16
    Part.LineSegment(V(-16.6, 18.1, 0), V(-13.5, 14.9, 0)),  # 17
    Part.LineSegment(V(-1.4, 18.1, 0), V(-7.6, 18.1, 0)),  # 18
    Part.LineSegment(V(-7.6, 18.1, 0), V(-4.5, 14.9, 0)),  # 19
    Part.LineSegment(V(-4.5, 14.9, 0), V(-1.4, 18.1, 0)),  # 20
], False)
sketch7.addConstraint([
    Sketcher.Constraint("Coincident", 0, 2, 1, 1),
    Sketcher.Constraint("Coincident", 1, 2, 2, 1),
    Sketcher.Constraint("Coincident", 2, 2, 3, 1),
    Sketcher.Constraint("Coincident", 3, 2, 0, 1),
    Sketcher.Constraint("Coincident", 4, 2, 5, 1),
    Sketcher.Constraint("Coincident", 5, 2, 6, 1),
    Sketcher.Constraint("Coincident", 6, 2, 7, 1),
    Sketcher.Constraint("Coincident", 7, 2, 4, 1),
    Sketcher.Constraint("Coincident", 8, 2, 9, 1),
    Sketcher.Constraint("Coincident", 9, 2, 10, 1),
    Sketcher.Constraint("Coincident", 10, 2, 11, 1),
    Sketcher.Constraint("Coincident", 11, 2, 8, 1),
    Sketcher.Constraint("Coincident", 12, 2, 13, 1),
    Sketcher.Constraint("Coincident", 13, 2, 14, 1),
    Sketcher.Constraint("Coincident", 14, 2, 12, 1),
    Sketcher.Constraint("Coincident", 15, 2, 16, 1),
    Sketcher.Constraint("Coincident", 16, 2, 17, 1),
    Sketcher.Constraint("Coincident", 17, 2, 15, 1),
    Sketcher.Constraint("Coincident", 18, 2, 19, 1),
    Sketcher.Constraint("Coincident", 19, 2, 20, 1),
    Sketcher.Constraint("Coincident", 20, 2, 18, 1),
    Sketcher.Constraint("Vertical", 14),
    Sketcher.Constraint("Horizontal", 16),
    Sketcher.Constraint("Horizontal", 18),
    Sketcher.Constraint("Perpendicular", 0, 1),
    Sketcher.Constraint("Perpendicular", 1, 2),
    Sketcher.Constraint("Perpendicular", 2, 3),
    Sketcher.Constraint("Perpendicular", 3, 4),
    Sketcher.Constraint("Perpendicular", 4, 5),
    Sketcher.Constraint("Perpendicular", 5, 6),
    Sketcher.Constraint("Perpendicular", 6, 7),
    Sketcher.Constraint("Perpendicular", 7, 8),
    Sketcher.Constraint("Perpendicular", 8, 9),
    Sketcher.Constraint("Perpendicular", 9, 10),
    Sketcher.Constraint("Perpendicular", 10, 11),
    Sketcher.Constraint("Parallel", 11, 12),
    Sketcher.Constraint("Perpendicular", 12, 13),
    Sketcher.Constraint("Perpendicular", 13, 15),
    Sketcher.Constraint("Perpendicular", 15, 17),
    Sketcher.Constraint("Parallel", 17, 19),
    Sketcher.Constraint("Perpendicular", 19, 20),
    Sketcher.Constraint("Horizontal", 1, 2, 3, 2),
    Sketcher.Constraint("Horizontal", 5, 2, 7, 2),
    Sketcher.Constraint("Horizontal", 0, 2, 8, 2),
    Sketcher.Constraint("Horizontal", 3, 2, 9, 2),
    Sketcher.Constraint("Horizontal", 2, 2, 10, 2),
    Sketcher.Constraint("Horizontal", 7, 2, 12, 2),
    Sketcher.Constraint("Horizontal", 6, 2, 13, 2),
    Sketcher.Constraint("Horizontal", 4, 2, 14, 2),
    Sketcher.Constraint("Horizontal", 16, 2, 18, 2),
    Sketcher.Constraint("Horizontal", 17, 2, 19, 2),
    Sketcher.Constraint("Vertical", 10, 2, 17, 2),
    Sketcher.Constraint("Vertical", 2, 2, 19, 2),
    Sketcher.Constraint("Equal", 3, 4),
    Sketcher.Constraint("DistanceY", -1, 1, 1, 2, 9.0),
    Sketcher.Constraint("DistanceX", 4, 2, -1, 1, 9.0),
    Sketcher.Constraint("DistanceX", 13, 2, -1, 1, 18.0),
    Sketcher.Constraint("DistanceX", 9, 2, 1, 2, 9.0),
    Sketcher.Constraint("DistanceX", 0, 2, -1, 1, 4.5),
    Sketcher.Constraint("DistanceY", -1, 1, 5, 2, 13.5),
    Sketcher.Constraint("DistanceY", 4, 2, 19, 2, 4.5),
    Sketcher.Constraint("DistanceX", 16, 2, 16, 1, 6.285268),
    Sketcher.Constraint("Distance", 0, 4.363961),
])
pocket6 = doc.addObject("PartDesign::Pocket", "Pocket005")
body.addObject(pocket6)
pocket6.Profile = sketch7
pocket6.Length = 2
pocket6.Reversed = True

# Sketch on XY plane
sketch8 = doc.addObject("Sketcher::SketchObject", "Sketch007")
body.addObject(sketch8)
sketch8.AttachmentSupport = (doc.XY_Plane, [""])
sketch8.MapMode = "FlatFace"
sketch8.addGeometry([
    Part.LineSegment(V(27, 27, 0), V(27, -27, 0)),  # 0
    Part.LineSegment(V(27, -27, 0), V(-27, -27, 0)),  # 1
    Part.LineSegment(V(-27, -27, 0), V(-27, 27, 0)),  # 2
    Part.LineSegment(V(-27, 27, 0), V(27, 27, 0)),  # 3
    Part.LineSegment(V(-20, -20, 0), V(20, -20, 0)),  # 4
    Part.LineSegment(V(20, -20, 0), V(20, 20, 0)),  # 5
    Part.LineSegment(V(20, 20, 0), V(-20, 20, 0)),  # 6
    Part.LineSegment(V(-20, 20, 0), V(-20, -20, 0)),  # 7
], False)
sketch8.addConstraint([
    Sketcher.Constraint("Coincident", 0, 2, 1, 1),
    Sketcher.Constraint("Coincident", 1, 2, 2, 1),
    Sketcher.Constraint("Coincident", 2, 2, 3, 1),
    Sketcher.Constraint("Coincident", 3, 2, 0, 1),
    Sketcher.Constraint("Coincident", 4, 2, 5, 1),
    Sketcher.Constraint("Coincident", 5, 2, 6, 1),
    Sketcher.Constraint("Coincident", 6, 2, 7, 1),
    Sketcher.Constraint("Coincident", 7, 2, 4, 1),
    Sketcher.Constraint("Vertical", 0),
    Sketcher.Constraint("Horizontal", 1),
    Sketcher.Constraint("Vertical", 2),
    Sketcher.Constraint("Horizontal", 3),
    Sketcher.Constraint("Horizontal", 4),
    Sketcher.Constraint("Vertical", 5),
    Sketcher.Constraint("Horizontal", 6),
    Sketcher.Constraint("Vertical", 7),
    Sketcher.Constraint("Symmetric", 0, 2, 2, 2, -1, 1),
    Sketcher.Constraint("Symmetric", 4, 2, 6, 2, -1, 1),
    Sketcher.Constraint("Equal", 3, 0),
    Sketcher.Constraint("Equal", 6, 5),
    Sketcher.Constraint("DistanceX", 4, 1, 4, 2, 39.9),
    Sketcher.Constraint("DistanceX", 1, 2, 1, 1, 53.32),
])
pocket7 = doc.addObject("PartDesign::Pocket", "Pocket006")
body.addObject(pocket7)
pocket7.Profile = sketch8
pocket7.Length = 10
pocket7.Reversed = True

doc.recompute()
